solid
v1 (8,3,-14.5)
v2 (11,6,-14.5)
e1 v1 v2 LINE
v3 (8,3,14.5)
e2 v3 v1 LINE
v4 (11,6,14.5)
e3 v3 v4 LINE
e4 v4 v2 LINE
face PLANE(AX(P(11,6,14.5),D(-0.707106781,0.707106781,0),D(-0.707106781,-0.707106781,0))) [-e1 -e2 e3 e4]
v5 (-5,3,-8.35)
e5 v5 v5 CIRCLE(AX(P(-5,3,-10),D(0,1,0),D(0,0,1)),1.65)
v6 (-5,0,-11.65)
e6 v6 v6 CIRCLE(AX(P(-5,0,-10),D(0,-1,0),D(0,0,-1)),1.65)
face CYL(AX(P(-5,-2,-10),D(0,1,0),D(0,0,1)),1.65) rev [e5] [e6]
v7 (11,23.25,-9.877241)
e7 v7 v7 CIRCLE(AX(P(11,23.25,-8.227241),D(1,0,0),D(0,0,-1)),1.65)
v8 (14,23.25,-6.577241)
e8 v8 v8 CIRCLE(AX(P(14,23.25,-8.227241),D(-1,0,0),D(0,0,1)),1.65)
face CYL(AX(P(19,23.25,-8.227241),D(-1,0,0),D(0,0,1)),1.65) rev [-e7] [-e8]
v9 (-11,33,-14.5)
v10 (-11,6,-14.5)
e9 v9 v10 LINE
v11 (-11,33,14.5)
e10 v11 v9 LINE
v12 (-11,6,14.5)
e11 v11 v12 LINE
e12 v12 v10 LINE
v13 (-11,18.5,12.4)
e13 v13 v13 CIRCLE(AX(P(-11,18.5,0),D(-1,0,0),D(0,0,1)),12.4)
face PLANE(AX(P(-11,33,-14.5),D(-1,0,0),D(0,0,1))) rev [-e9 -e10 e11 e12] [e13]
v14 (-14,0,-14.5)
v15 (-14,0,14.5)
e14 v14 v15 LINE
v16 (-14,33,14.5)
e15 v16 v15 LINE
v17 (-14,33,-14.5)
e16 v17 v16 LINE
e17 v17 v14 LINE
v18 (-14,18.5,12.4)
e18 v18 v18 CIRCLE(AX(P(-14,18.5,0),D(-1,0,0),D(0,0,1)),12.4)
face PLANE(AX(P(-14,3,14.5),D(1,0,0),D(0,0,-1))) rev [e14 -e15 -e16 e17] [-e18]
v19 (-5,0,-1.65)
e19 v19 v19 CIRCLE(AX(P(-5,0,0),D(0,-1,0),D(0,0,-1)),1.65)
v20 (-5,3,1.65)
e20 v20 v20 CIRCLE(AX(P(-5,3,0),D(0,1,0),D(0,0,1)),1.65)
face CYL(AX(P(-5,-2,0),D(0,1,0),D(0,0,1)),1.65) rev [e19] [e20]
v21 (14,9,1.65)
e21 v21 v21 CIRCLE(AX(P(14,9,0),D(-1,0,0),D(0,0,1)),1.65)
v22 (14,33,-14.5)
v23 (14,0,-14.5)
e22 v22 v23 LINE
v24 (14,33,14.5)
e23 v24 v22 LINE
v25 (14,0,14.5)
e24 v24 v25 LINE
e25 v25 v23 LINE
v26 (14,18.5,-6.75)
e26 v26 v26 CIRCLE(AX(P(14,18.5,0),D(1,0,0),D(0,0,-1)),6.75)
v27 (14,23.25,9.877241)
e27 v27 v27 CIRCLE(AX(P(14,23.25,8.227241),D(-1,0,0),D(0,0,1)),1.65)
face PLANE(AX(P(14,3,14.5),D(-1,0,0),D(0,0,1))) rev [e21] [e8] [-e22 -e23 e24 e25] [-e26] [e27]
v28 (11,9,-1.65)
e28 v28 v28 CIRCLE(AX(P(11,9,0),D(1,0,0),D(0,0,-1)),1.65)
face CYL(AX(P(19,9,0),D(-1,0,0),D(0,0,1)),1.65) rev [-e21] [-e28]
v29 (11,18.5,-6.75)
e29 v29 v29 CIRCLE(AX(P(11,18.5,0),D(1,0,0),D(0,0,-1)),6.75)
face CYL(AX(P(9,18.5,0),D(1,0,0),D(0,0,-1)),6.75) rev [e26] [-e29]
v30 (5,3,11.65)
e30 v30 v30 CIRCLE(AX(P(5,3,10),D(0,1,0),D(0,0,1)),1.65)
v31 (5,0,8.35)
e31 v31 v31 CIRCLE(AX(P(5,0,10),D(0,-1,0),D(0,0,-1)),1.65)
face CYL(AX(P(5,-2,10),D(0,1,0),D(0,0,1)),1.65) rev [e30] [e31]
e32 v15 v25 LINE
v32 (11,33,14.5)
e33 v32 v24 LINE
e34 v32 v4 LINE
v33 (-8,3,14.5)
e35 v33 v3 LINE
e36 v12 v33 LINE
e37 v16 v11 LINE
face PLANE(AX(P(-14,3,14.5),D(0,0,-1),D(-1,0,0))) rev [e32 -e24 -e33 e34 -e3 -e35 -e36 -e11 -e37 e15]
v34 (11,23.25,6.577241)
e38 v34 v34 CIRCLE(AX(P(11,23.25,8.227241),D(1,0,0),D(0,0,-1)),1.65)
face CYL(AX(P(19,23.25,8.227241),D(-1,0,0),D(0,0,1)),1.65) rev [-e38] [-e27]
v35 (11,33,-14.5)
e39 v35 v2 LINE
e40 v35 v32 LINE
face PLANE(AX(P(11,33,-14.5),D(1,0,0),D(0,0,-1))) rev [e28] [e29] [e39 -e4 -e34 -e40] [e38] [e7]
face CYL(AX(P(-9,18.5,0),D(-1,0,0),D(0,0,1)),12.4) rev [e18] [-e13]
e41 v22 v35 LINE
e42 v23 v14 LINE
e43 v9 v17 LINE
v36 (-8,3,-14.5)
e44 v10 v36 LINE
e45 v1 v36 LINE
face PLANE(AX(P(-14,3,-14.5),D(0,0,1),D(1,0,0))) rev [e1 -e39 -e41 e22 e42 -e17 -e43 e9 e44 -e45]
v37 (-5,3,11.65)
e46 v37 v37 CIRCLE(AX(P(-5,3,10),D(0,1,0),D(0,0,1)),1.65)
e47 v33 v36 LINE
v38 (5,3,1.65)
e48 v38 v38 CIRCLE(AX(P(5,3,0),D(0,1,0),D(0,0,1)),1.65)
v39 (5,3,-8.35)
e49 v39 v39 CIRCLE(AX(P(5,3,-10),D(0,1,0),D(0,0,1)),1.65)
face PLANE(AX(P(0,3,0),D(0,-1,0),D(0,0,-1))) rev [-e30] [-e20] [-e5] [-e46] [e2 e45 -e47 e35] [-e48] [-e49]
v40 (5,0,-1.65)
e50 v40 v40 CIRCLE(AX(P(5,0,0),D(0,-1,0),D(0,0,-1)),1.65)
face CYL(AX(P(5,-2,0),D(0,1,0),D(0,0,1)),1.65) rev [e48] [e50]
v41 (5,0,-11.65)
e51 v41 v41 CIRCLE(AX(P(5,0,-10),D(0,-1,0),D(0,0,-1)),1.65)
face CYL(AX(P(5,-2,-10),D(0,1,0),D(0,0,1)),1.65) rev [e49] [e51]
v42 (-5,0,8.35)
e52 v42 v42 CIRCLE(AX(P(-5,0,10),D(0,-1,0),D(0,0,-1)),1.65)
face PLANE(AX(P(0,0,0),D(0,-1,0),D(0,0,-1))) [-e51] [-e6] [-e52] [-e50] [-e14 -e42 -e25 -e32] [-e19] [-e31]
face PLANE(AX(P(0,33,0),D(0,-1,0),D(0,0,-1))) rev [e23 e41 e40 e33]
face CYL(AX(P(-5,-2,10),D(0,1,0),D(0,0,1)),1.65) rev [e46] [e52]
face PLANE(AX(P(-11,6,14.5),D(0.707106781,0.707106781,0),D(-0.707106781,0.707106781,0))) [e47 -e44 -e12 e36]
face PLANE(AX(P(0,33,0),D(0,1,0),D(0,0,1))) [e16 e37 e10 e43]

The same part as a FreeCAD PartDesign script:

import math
import FreeCAD as App
import Part
import Sketcher

V = App.Vector
Q = App.Units.Quantity


def add_polygon(sketch, points):
    """Adds a closed chain of lines whose ends are joined by coincident constraints."""
    first, n = sketch.GeometryCount, len(points)
    for a, b in zip(points, points[1:] + points[:1]):
        sketch.addGeometry(Part.LineSegment(App.Vector(*a, 0), App.Vector(*b, 0)), False)
    for i in range(n):
        sketch.addConstraint(Sketcher.Constraint("Coincident", first + i, 2, first + (i + 1) % n, 1))

doc = App.newDocument("Part")
body = doc.addObject("PartDesign::Body", "Body")

# Sketch on XZ plane
sketch1 = body.newObject("Sketcher::SketchObject", "Sketch")
sketch1.AttachmentSupport = (doc.getObject("XZ_Plane"), [""])
sketch1.MapMode = "FlatFace"
add_polygon(sketch1, [(-14, -14), (-14, 14), (14, 14), (14, -14)])  # lines 0-3
sketch1.addConstraint([
    Sketcher.Constraint("Vertical", 0),
    Sketcher.Constraint("Horizontal", 1),
    Sketcher.Constraint("Vertical", 2),
    Sketcher.Constraint("Horizontal", 3),
    Sketcher.Constraint("Symmetric", 0, 2, 2, 2, -1, 1),
    Sketcher.Constraint("DistanceX", 1, 1, 1, 2, Q("28 mm")),
    Sketcher.Constraint("DistanceY", 0, 1, 0, 2, Q("29 mm")),
])
pad1 = body.newObject("PartDesign::Pad", "Pad")
pad1.Profile = sketch1
pad1.Length = 3
pad1.Reversed = True

# Sketch on XZ plane
sketch2 = body.newObject("Sketcher::SketchObject", "Sketch001")
sketch2.AttachmentSupport = (doc.getObject("XZ_Plane"), [""])
sketch2.MapMode = "FlatFace"
sketch2.AttachmentOffset = App.Placement(V(0, 0, -3), App.Rotation())
add_polygon(sketch2, [(11, -14.5), (11, 14.5), (14, 14.5), (14, -14.5)])  # lines 0-3
add_polygon(sketch2, [(-14, -14.5), (-14, 14.5), (-11, 14.5), (-11, -14.5)])  # lines 4-7
sketch2.addConstraint([
    Sketcher.Constraint("Vertical", 0),
    Sketcher.Constraint("Horizontal", 1),
    Sketcher.Constraint("Vertical", 2),
    Sketcher.Constraint("Horizontal", 3),
    Sketcher.Constraint("Vertical", 4),
    Sketcher.Constraint("Horizontal", 5),
    Sketcher.Constraint("Vertical", 6),
    Sketcher.Constraint("Horizontal", 7),
    Sketcher.Constraint("Symmetric", 2, 2, 4, 2, -1, 1),
    Sketcher.Constraint("Symmetric", 0, 2, 6, 2, -1, 1),
    Sketcher.Constraint("Horizontal", 1, 2, 4, 2),
    Sketcher.Constraint("DistanceX", 1, 1, 1, 2, Q("3 mm")),
    Sketcher.Constraint("DistanceY", 0, 1, 0, 2, Q("29 mm")),
    Sketcher.Constraint("DistanceX", -1, 1, 0, 2, Q("11 mm")),
])
pad2 = body.newObject("PartDesign::Pad", "Pad001")
pad2.Profile = sketch2
pad2.Length = 30
pad2.Reversed = True

# Sketch on YZ plane
sketch3 = body.newObject("Sketcher::SketchObject", "Sketch002")
sketch3.AttachmentSupport = (doc.getObject("YZ_Plane"), [""])
sketch3.MapMode = "FlatFace"
sketch3.AttachmentOffset = App.Placement(V(0, 0, -14), App.Rotation())
sketch3.addGeometry([
    Part.Circle(V(23.2, -8.2, 0), V(0, 0, 1), 1.6),
    Part.Circle(V(23.2, 8.2, 0), V(0, 0, 1), 1.6),
    Part.Circle(V(9, 0, 0), V(0, 0, 1), 1.6),
], False)
sketch3.addConstraint([
    Sketcher.Constraint("Equal", 0, 1),
    Sketcher.Constraint("Equal", 1, 2),
    Sketcher.Constraint("Symmetric", 0, 3, 1, 3, -1),
    Sketcher.Constraint("PointOnObject", 2, 3, -1),
    Sketcher.Constraint("Diameter", 0, Q("3.3 mm")),
    Sketcher.Constraint("DistanceX", -1, 1, 2, 3, Q("9 mm")),
    Sketcher.Constraint("DistanceX", -1, 1, 0, 3, Q("23.25 mm")),
    Sketcher.Constraint("DistanceY", 0, 3, -1, 1, Q("8.227241 mm")),
])
pocket1 = body.newObject("PartDesign::Pocket", "Pocket")
pocket1.Profile = sketch3
pocket1.Length = 33
pocket1.Reversed = True

# Sketch on XY plane
sketch4 = body.newObject("Sketcher::SketchObject", "Sketch003")
sketch4.AttachmentSupport = (doc.getObject("XY_Plane"), [""])
sketch4.MapMode = "FlatFace"
sketch4.AttachmentOffset = App.Placement(V(0, 0, -14.5), App.Rotation())
add_polygon(sketch4, [(-11, 3), (-11, 6), (-8, 3)])  # lines 0-2
add_polygon(sketch4, [(11, 6), (11, 3), (8, 3)])  # lines 3-5
sketch4.addConstraint([
    Sketcher.Constraint("Vertical", 0),
    Sketcher.Constraint("Horizontal", 2),
    Sketcher.Constraint("Vertical", 3),
    Sketcher.Constraint("Horizontal", 4),
    Sketcher.Constraint("Symmetric", 2, 2, 3, 2, -2),
    Sketcher.Constraint("Perpendicular", 1, 5),
    Sketcher.Constraint("Horizontal", 0, 2, 5, 2),
    Sketcher.Constraint("Equal", 2, 4),
    Sketcher.Constraint("DistanceX", 2, 2, 2, 1, Q("3 mm")),
    Sketcher.Constraint("DistanceX", 0, 2, -1, 1, Q("11 mm")),
    Sketcher.Constraint("DistanceY", -1, 1, 0, 2, Q("6 mm")),
])
pad3 = body.newObject("PartDesign::Pad", "Pad002")
pad3.Profile = sketch4
pad3.Length = 29

# Sketch on YZ plane
sketch5 = body.newObject("Sketcher::SketchObject", "Sketch004")
sketch5.AttachmentSupport = (doc.getObject("YZ_Plane"), [""])
sketch5.MapMode = "FlatFace"
sketch5.AttachmentOffset = App.Placement(V(0, 0, -14), App.Rotation())
sketch5.addGeometry(Part.Circle(V(18, 0, 0), V(0, 0, 1), 12), False)
sketch5.addConstraint([
    Sketcher.Constraint("PointOnObject", 0, 3, -1),
    Sketcher.Constraint("Diameter", 0, Q("24.8 mm")),
    Sketcher.Constraint("DistanceX", -1, 1, 0, 3, Q("18.5 mm")),
])
pocket2 = body.newObject("PartDesign::Pocket", "Pocket001")
pocket2.Profile = sketch5
pocket2.Length = 5
pocket2.Reversed = True

# Sketch on XZ plane
sketch6 = body.newObject("Sketcher::SketchObject", "Sketch005")
sketch6.AttachmentSupport = (doc.getObject("XZ_Plane"), [""])
sketch6.MapMode = "FlatFace"
sketch6.AttachmentOffset = App.Placement(V(0, 0, -3), App.Rotation())
sketch6.addGeometry([
    Part.ArcOfCircle(Part.Circle(V(-5, -10, 0), V(0, 0, 1), 1.6), math.radians(90), math.radians(360)),  # 0
    Part.ArcOfCircle(Part.Circle(V(-5, -10, 0), V(0, 0, 1), 1.6), math.radians(0), math.radians(90)),  # 1
    Part.ArcOfCircle(Part.Circle(V(5, -10, 0), V(0, 0, 1), 1.6), math.radians(90), math.radians(180)),  # 2
    Part.ArcOfCircle(Part.Circle(V(5, -10, 0), V(0, 0, 1), 1.6), math.radians(0), math.radians(90)),  # 3
    Part.ArcOfCircle(Part.Circle(V(5, -10, 0), V(0, 0, 1), 1.6), math.radians(180), math.radians(360)),  # 4
    Part.ArcOfCircle(Part.Circle(V(5, 10, 0), V(0, 0, 1), 1.6), math.radians(180), math.radians(270)),  # 5
    Part.ArcOfCircle(Part.Circle(V(5, 10, 0), V(0, 0, 1), 1.6), math.radians(0), math.radians(180)),  # 6
    Part.ArcOfCircle(Part.Circle(V(5, 10, 0), V(0, 0, 1), 1.6), math.radians(-90), math.radians(0)),  # 7
    Part.ArcOfCircle(Part.Circle(V(-5, 10, 0), V(0, 0, 1), 1.6), math.radians(-90), math.radians(0)),  # 8
    Part.ArcOfCircle(Part.Circle(V(-5, 10, 0), V(0, 0, 1), 1.6), math.radians(0), math.radians(270)),  # 9
    Part.Circle(V(5, 0, 0), V(0, 0, 1), 1.6),  # 10
    Part.Circle(V(-5, 0, 0), V(0, 0, 1), 1.6),  # 11
], False)
sketch6.addConstraint([
    Sketcher.Constraint("Tangent", 0, 1, 1, 2),
    Sketcher.Constraint("Coincident", 1, 1, 0, 2),
    Sketcher.Constraint("Tangent", 2, 1, 3, 2),
    Sketcher.Constraint("Tangent", 3, 1, 4, 2),
    Sketcher.Constraint("Tangent", 4, 1, 2, 2),
    Sketcher.Constraint("Tangent", 5, 1, 6, 2),
    Sketcher.Constraint("Tangent", 6, 1, 7, 2),
    Sketcher.Constraint("Tangent", 7, 1, 5, 2),
    Sketcher.Constraint("Tangent", 8, 1, 9, 2),
    Sketcher.Constraint("Coincident", 9, 1, 8, 2),
    Sketcher.Constraint("Equal", 1, 2),
    Sketcher.Constraint("Equal", 4, 5),
    Sketcher.Constraint("Equal", 7, 8),
    Sketcher.Constraint("Equal", 9, 10),
    Sketcher.Constraint("Equal", 10, 11),
    Sketcher.Constraint("Symmetric", 0, 3, 5, 3, -1, 1),
    Sketcher.Constraint("Symmetric", 2, 3, 8, 3, -1, 1),
    Sketcher.Constraint("Symmetric", 10, 3, 11, 3, -1, 1),
    Sketcher.Constraint("Symmetric", 0, 3, 2, 3, -2),
    Sketcher.Constraint("PointOnObject", 10, 3, -1),
    Sketcher.Constraint("Horizontal", 4, 3, 1, 1),
    Sketcher.Constraint("Horizontal", 1, 1, 3, 1),
    Sketcher.Constraint("Horizontal", 3, 1, 4, 1),
    Sketcher.Constraint("Horizontal", 9, 3, 5, 1),
    Sketcher.Constraint("Horizontal", 5, 1, 6, 1),
    Sketcher.Constraint("Horizontal", 6, 1, 9, 1),
    Sketcher.Constraint("Vertical", 7, 3, 10, 3),
    Sketcher.Constraint("Vertical", 11, 3, 0, 1),
    Sketcher.Constraint("Vertical", 10, 3, 2, 1),
    Sketcher.Constraint("Vertical", 2, 1, 7, 1),
    Sketcher.Constraint("Vertical", 0, 1, 8, 1),
    Sketcher.Constraint("Diameter", 10, Q("3.3 mm")),
    Sketcher.Constraint("DistanceX", 0, 3, -1, 1, Q("5 mm")),
    Sketcher.Constraint("DistanceY", 0, 3, -1, 1, Q("10 mm")),
])
pocket3 = body.newObject("PartDesign::Pocket", "Pocket002")
pocket3.Profile = sketch6
pocket3.Length = 5
pocket3.Reversed = True

# Sketch on YZ plane
sketch7 = body.newObject("Sketcher::SketchObject", "Sketch006")
sketch7.AttachmentSupport = (doc.getObject("YZ_Plane"), [""])
sketch7.MapMode = "FlatFace"
sketch7.AttachmentOffset = App.Placement(V(0, 0, 14), App.Rotation())
sketch7.addGeometry(Part.Circle(V(18, 0, 0), V(0, 0, 1), 7), False)
sketch7.addConstraint([
    Sketcher.Constraint("PointOnObject", 0, 3, -1),
    Sketcher.Constraint("Diameter", 0, Q("13.5 mm")),
    Sketcher.Constraint("DistanceX", -1, 1, 0, 3, Q("18.5 mm")),
])
pocket4 = body.newObject("PartDesign::Pocket", "Pocket003")
pocket4.Profile = sketch7
pocket4.Length = 5

doc.recompute()
